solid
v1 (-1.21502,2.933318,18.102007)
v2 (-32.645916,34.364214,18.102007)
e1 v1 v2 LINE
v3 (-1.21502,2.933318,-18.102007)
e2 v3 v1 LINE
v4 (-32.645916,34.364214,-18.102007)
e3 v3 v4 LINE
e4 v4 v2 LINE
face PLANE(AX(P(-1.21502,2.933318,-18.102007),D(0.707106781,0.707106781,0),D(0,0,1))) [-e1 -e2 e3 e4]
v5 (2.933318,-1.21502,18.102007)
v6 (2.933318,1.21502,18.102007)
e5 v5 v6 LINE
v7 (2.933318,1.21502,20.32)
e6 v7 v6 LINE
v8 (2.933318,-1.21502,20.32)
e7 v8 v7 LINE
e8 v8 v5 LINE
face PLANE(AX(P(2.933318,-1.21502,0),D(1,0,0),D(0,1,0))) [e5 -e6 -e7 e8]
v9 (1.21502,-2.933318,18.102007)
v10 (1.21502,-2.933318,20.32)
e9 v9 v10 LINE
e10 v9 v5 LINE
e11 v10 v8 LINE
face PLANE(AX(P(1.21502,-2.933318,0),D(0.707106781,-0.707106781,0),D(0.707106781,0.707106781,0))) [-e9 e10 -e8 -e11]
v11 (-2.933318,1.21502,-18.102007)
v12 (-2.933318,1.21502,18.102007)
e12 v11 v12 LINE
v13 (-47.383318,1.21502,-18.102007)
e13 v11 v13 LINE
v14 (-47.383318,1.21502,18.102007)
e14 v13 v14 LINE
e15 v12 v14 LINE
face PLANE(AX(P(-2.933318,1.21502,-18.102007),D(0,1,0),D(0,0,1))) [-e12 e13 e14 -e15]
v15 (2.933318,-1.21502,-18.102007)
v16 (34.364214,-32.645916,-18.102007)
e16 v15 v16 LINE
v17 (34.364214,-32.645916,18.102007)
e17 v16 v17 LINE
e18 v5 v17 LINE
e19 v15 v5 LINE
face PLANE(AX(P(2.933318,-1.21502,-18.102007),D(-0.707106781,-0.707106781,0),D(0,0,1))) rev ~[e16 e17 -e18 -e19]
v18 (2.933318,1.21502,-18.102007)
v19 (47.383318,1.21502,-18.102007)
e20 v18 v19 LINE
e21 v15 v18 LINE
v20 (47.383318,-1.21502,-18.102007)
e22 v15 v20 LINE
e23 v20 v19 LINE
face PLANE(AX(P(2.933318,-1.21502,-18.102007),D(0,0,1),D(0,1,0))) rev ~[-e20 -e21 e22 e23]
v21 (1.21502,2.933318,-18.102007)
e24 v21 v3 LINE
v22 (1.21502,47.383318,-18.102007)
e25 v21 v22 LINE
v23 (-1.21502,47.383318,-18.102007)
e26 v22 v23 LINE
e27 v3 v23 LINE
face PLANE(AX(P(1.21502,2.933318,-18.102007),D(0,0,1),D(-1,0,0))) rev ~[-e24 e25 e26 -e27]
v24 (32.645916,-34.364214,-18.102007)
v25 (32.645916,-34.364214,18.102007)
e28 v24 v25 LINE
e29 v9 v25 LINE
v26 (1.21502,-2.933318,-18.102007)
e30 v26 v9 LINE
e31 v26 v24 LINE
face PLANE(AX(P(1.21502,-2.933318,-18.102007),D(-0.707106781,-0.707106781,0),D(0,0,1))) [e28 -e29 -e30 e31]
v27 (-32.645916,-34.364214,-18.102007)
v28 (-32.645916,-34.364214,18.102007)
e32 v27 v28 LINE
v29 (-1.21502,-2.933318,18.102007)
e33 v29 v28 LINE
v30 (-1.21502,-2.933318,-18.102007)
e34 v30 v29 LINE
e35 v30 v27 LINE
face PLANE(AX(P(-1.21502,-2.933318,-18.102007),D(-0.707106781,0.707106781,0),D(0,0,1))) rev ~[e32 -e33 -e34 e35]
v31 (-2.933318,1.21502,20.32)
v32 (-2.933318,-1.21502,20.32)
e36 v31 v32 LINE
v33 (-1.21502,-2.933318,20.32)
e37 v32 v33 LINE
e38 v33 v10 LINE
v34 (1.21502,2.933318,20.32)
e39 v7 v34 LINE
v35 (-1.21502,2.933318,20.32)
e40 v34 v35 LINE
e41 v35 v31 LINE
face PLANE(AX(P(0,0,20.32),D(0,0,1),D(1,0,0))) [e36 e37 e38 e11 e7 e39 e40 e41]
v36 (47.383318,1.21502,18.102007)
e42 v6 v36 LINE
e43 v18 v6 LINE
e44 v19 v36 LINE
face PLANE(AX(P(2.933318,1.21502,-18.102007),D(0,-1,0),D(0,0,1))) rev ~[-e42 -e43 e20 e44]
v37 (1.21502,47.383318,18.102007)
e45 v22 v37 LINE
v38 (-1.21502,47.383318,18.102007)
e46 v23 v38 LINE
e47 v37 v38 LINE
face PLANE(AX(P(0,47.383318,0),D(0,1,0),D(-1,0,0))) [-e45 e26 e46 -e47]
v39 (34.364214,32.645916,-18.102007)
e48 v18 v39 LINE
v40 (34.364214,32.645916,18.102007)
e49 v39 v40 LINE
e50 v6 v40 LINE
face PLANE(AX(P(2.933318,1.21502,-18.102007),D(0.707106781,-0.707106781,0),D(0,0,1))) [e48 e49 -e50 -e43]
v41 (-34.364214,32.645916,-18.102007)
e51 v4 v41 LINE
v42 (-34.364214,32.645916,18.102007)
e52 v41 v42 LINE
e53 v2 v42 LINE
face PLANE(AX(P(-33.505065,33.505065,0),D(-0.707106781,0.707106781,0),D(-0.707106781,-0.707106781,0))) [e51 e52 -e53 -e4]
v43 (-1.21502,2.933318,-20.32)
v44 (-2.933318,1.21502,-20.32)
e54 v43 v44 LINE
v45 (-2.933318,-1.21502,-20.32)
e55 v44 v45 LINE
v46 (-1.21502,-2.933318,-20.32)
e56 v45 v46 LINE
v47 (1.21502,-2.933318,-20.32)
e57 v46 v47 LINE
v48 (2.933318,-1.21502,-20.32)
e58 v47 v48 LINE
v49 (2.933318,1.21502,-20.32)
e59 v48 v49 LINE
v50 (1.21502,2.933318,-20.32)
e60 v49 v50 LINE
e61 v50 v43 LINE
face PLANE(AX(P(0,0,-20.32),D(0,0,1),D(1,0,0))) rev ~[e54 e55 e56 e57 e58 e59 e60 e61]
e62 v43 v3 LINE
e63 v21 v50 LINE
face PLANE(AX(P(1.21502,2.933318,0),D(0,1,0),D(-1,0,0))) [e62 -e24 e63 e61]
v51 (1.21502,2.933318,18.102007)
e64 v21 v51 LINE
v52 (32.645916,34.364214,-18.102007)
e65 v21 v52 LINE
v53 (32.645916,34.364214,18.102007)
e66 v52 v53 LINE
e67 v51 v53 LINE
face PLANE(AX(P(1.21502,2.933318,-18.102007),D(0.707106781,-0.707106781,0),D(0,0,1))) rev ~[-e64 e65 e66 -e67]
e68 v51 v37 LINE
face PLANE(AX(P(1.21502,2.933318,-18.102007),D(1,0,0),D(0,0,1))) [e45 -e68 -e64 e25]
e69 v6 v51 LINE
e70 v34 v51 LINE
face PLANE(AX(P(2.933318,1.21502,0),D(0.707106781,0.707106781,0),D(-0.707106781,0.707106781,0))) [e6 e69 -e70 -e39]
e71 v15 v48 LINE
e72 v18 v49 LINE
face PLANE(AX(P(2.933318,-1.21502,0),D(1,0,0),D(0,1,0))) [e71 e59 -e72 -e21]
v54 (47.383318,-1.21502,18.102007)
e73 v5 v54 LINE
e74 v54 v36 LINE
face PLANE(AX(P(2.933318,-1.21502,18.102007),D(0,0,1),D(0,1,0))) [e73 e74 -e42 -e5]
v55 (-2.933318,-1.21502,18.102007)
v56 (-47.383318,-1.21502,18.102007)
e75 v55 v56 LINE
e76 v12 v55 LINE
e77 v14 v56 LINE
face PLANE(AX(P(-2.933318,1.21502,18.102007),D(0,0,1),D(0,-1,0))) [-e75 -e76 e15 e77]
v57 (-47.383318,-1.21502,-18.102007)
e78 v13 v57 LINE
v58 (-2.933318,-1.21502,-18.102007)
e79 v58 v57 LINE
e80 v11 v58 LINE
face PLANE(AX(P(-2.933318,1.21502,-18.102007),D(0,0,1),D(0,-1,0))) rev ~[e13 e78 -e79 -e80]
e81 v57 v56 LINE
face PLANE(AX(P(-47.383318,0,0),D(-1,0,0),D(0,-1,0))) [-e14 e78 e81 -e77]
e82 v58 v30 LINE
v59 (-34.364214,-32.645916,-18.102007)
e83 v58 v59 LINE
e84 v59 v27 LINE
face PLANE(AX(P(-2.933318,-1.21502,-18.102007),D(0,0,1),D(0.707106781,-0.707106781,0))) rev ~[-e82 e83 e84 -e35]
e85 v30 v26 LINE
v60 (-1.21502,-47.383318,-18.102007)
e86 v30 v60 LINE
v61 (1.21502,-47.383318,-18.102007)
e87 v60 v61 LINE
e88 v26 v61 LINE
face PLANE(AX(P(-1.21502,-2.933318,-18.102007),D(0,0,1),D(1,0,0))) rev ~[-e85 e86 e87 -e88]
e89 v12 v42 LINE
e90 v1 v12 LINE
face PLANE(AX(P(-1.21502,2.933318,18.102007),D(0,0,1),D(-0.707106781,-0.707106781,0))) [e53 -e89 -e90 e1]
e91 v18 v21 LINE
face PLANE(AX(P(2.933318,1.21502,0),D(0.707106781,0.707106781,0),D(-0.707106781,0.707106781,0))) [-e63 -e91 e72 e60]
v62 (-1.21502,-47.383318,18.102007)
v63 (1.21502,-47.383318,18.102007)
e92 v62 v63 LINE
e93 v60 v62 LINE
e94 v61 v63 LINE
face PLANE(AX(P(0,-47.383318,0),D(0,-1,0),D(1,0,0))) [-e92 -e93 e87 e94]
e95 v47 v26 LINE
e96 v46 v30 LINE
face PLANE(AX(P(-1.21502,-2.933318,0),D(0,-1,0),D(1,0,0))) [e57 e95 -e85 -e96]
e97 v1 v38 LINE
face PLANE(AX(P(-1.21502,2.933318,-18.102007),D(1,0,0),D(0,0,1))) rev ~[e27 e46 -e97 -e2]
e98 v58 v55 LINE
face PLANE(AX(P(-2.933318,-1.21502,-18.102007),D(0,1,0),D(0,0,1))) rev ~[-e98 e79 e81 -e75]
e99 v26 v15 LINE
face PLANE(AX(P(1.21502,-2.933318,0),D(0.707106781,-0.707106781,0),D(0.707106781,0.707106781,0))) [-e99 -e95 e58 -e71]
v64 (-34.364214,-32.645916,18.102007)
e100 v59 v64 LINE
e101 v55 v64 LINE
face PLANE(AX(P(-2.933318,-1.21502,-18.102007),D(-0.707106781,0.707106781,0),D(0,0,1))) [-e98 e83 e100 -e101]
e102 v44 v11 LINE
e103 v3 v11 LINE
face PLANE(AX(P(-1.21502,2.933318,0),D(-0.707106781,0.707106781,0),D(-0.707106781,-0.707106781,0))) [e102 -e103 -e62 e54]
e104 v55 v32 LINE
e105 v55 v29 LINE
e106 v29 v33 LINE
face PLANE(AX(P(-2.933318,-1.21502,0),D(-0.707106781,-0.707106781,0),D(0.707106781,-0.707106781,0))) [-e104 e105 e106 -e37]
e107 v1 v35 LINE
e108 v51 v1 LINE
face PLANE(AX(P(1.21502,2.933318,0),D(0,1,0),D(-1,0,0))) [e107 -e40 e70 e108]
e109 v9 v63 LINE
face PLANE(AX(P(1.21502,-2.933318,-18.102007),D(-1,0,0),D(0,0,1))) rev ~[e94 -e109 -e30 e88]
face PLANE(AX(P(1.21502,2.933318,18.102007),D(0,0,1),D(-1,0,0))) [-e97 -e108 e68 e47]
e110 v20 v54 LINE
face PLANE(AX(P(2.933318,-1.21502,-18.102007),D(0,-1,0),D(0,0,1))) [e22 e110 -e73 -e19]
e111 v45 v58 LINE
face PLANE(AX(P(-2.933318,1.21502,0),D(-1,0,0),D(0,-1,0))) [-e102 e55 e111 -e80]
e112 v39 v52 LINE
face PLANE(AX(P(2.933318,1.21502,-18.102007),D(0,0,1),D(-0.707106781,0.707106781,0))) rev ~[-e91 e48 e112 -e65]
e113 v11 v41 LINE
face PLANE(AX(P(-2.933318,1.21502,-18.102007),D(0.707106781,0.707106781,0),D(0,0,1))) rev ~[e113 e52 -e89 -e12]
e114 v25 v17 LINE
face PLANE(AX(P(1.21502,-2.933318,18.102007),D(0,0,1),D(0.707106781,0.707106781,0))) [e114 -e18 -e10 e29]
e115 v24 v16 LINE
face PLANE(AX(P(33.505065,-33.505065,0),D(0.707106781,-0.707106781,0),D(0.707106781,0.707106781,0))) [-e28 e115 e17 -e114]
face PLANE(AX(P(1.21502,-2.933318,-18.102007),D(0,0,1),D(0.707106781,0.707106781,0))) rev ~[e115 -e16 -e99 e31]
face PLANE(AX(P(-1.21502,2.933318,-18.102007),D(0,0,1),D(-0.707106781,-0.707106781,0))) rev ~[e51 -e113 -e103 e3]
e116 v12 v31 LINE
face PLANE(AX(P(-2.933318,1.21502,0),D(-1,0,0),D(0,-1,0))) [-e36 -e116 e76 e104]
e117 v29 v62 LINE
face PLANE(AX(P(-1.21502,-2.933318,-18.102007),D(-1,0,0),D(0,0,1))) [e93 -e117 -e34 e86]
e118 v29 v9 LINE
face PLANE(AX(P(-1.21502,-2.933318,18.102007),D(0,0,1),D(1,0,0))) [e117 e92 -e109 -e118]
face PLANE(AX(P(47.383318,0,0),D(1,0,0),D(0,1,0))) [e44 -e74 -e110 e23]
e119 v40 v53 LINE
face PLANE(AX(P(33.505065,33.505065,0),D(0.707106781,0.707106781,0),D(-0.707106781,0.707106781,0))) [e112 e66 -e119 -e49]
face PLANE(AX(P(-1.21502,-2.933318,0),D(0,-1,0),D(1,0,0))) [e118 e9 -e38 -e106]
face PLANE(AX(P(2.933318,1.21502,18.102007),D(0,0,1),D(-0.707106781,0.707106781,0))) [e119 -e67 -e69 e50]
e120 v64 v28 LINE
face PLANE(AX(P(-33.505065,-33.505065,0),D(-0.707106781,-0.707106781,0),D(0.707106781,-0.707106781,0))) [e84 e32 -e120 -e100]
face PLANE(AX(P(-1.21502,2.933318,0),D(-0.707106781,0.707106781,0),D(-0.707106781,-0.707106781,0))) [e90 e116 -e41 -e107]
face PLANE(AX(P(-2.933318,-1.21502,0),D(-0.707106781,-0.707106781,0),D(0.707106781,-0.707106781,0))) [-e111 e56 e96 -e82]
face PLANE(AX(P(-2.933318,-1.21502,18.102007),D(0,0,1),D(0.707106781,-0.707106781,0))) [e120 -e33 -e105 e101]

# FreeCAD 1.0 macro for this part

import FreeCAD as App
import Part
import Sketcher
from FreeCAD import Vector
Q = App.Units.Quantity

doc = App.newDocument("Part")
body = doc.addObject("PartDesign::Body", "Body")

sketch1 = body.newObject("Sketcher::SketchObject", "Sketch")
sketch1.AttachmentSupport = (doc.getObject("XY_Plane"), [""])
sketch1.MapMode = "FlatFace"
sketch1.addGeometry([
    Part.LineSegment(Vector(1.2, 2.9, 0), Vector(-1.2, 2.9, 0)),
    Part.LineSegment(Vector(-1.2, 2.9, 0), Vector(-2.9, 1.2, 0)),
    Part.LineSegment(Vector(-2.9, 1.2, 0), Vector(-2.9, -1.2, 0)),
    Part.LineSegment(Vector(-2.9, -1.2, 0), Vector(-1.2, -2.9, 0)),
    Part.LineSegment(Vector(-1.2, -2.9, 0), Vector(1.2, -2.9, 0)),
    Part.LineSegment(Vector(1.2, -2.9, 0), Vector(2.9, -1.2, 0)),
    Part.LineSegment(Vector(2.9, -1.2, 0), Vector(2.9, 1.2, 0)),
    Part.LineSegment(Vector(2.9, 1.2, 0), Vector(1.2, 2.9, 0)),
], False)
sketch1.addConstraint([
    Sketcher.Constraint("Coincident", 0, 2, 1, 1),
    Sketcher.Constraint("Coincident", 1, 2, 2, 1),
    Sketcher.Constraint("Coincident", 2, 2, 3, 1),
    Sketcher.Constraint("Coincident", 3, 2, 4, 1),
    Sketcher.Constraint("Coincident", 4, 2, 5, 1),
    Sketcher.Constraint("Coincident", 5, 2, 6, 1),
    Sketcher.Constraint("Coincident", 6, 2, 7, 1),
    Sketcher.Constraint("Coincident", 7, 2, 0, 1),
    Sketcher.Constraint("Horizontal", 0),
    Sketcher.Constraint("Vertical", 2),
    Sketcher.Constraint("Horizontal", 4),
    Sketcher.Constraint("Vertical", 6),
    Sketcher.Constraint("Symmetric", 0, 2, 4, 2, -1, 1),
    Sketcher.Constraint("Symmetric", 1, 2, 5, 2, -1, 1),
    Sketcher.Constraint("Perpendicular", 1, 3),
    Sketcher.Constraint("Perpendicular", 5, 7),
    Sketcher.Constraint("Horizontal", 2, 2, 5, 2),
    Sketcher.Constraint("Horizontal", 1, 2, 6, 2),
    Sketcher.Constraint("Vertical", 0, 2, 3, 2),
    Sketcher.Constraint("Equal", 4, 2),
    Sketcher.Constraint("DistanceX", 0, 2, 0, 1, 2.43004),
    Sketcher.Constraint("Distance", 1, 2.43004),
])
pad1 = body.newObject("PartDesign::Pad", "Pad")
pad1.Profile = sketch1
pad1.Type = "TwoLengths"
pad1.Length = Q("0.8 in")
pad1.Length2 = Q("0.8 in")

sketch2 = body.newObject("Sketcher::SketchObject", "Sketch001")
sketch2.AttachmentSupport = (doc.getObject("XZ_Plane"), [""])
sketch2.MapMode = "FlatFace"
sketch2.AttachmentOffset = App.Placement(Vector(0, 0, -2.933318), App.Rotation())
sketch2.addGeometry([
    Part.LineSegment(Vector(1.2, 18.1, 0), Vector(1.2, -18.1, 0)),
    Part.LineSegment(Vector(1.2, -18.1, 0), Vector(-1.2, -18.1, 0)),
    Part.LineSegment(Vector(-1.2, -18.1, 0), Vector(-1.2, 18.1, 0)),
    Part.LineSegment(Vector(-1.2, 18.1, 0), Vector(1.2, 18.1, 0)),
], False)
sketch2.addConstraint([
    Sketcher.Constraint("Coincident", 0, 2, 1, 1),
    Sketcher.Constraint("Coincident", 1, 2, 2, 1),
    Sketcher.Constraint("Coincident", 2, 2, 3, 1),
    Sketcher.Constraint("Coincident", 3, 2, 0, 1),
    Sketcher.Constraint("Vertical", 0),
    Sketcher.Constraint("Horizontal", 1),
    Sketcher.Constraint("Vertical", 2),
    Sketcher.Constraint("Horizontal", 3),
    Sketcher.Constraint("Symmetric", 0, 2, 2, 2, -1, 1),
    Sketcher.Constraint("DistanceX", 1, 2, 1, 1, 2.43004),
    Sketcher.Constraint("DistanceY", 0, 2, 0, 1, 36.204014),
])
pad2 = body.newObject("PartDesign::Pad", "Pad001")
pad2.Profile = sketch2
pad2.Length = Q("1.75 in")
pad2.Reversed = True

sketch3 = body.newObject("Sketcher::SketchObject", "Sketch002")
sketch3.Placement = App.Placement(Vector(2.074169, 2.074169, 0), App.Rotation(Vector(-0.707106781, 0.707106781, 0), Vector(0, 0, 0.999999999), Vector(0.707106781, 0.707106781, 0), "ZXY"))
sketch3.addGeometry([
    Part.LineSegment(Vector(-1.2, 18.1, 0), Vector(-1.2, -18.1, 0)),
    Part.LineSegment(Vector(-1.2, -18.1, 0), Vector(1.2, -18.1, 0)),
    Part.LineSegment(Vector(1.2, -18.1, 0), Vector(1.2, 18.1, 0)),
    Part.LineSegment(Vector(1.2, 18.1, 0), Vector(-1.2, 18.1, 0)),
], False)
sketch3.addConstraint([
    Sketcher.Constraint("Coincident", 0, 2, 1, 1),
    Sketcher.Constraint("Coincident", 1, 2, 2, 1),
    Sketcher.Constraint("Coincident", 2, 2, 3, 1),
    Sketcher.Constraint("Coincident", 3, 2, 0, 1),
    Sketcher.Constraint("Vertical", 0),
    Sketcher.Constraint("Horizontal", 1),
    Sketcher.Constraint("Vertical", 2),
    Sketcher.Constraint("Horizontal", 3),
    Sketcher.Constraint("Symmetric", 0, 2, 2, 2, -1, 1),
    Sketcher.Constraint("DistanceX", 1, 1, 1, 2, 2.43004),
    Sketcher.Constraint("DistanceY", 0, 2, 0, 1, 36.204014),
])
pad3 = body.newObject("PartDesign::Pad", "Pad002")
pad3.Profile = sketch3
pad3.Length = Q("1.75 in")

sketch4 = body.newObject("Sketcher::SketchObject", "Sketch003")
sketch4.AttachmentSupport = (doc.getObject("YZ_Plane"), [""])
sketch4.MapMode = "FlatFace"
sketch4.AttachmentOffset = App.Placement(Vector(0, 0, 2.933318), App.Rotation())
sketch4.addGeometry([
    Part.LineSegment(Vector(-1.2, 18.1, 0), Vector(-1.2, -18.1, 0)),
    Part.LineSegment(Vector(-1.2, -18.1, 0), Vector(1.2, -18.1, 0)),
    Part.LineSegment(Vector(1.2, -18.1, 0), Vector(1.2, 18.1, 0)),
    Part.LineSegment(Vector(1.2, 18.1, 0), Vector(-1.2, 18.1, 0)),
], False)
sketch4.addConstraint([
    Sketcher.Constraint("Coincident", 0, 2, 1, 1),
    Sketcher.Constraint("Coincident", 1, 2, 2, 1),
    Sketcher.Constraint("Coincident", 2, 2, 3, 1),
    Sketcher.Constraint("Coincident", 3, 2, 0, 1),
    Sketcher.Constraint("Vertical", 0),
    Sketcher.Constraint("Horizontal", 1),
    Sketcher.Constraint("Vertical", 2),
    Sketcher.Constraint("Horizontal", 3),
    Sketcher.Constraint("Symmetric", 0, 2, 2, 2, -1, 1),
    Sketcher.Constraint("DistanceX", 1, 1, 1, 2, 2.43004),
    Sketcher.Constraint("DistanceY", 0, 2, 0, 1, 36.204014),
])
pad4 = body.newObject("PartDesign::Pad", "Pad003")
pad4.Profile = sketch4
pad4.Length = Q("1.75 in")

sketch5 = body.newObject("Sketcher::SketchObject", "Sketch004")
sketch5.Placement = App.Placement(Vector(2.074169, -2.074169, 0), App.Rotation(Vector(0.707106781, 0.707106781, 0), Vector(0, 0, 0.999999999), Vector(0.707106781, -0.707106781, 0), "ZXY"))
sketch5.addGeometry([
    Part.LineSegment(Vector(-1.2, 18.1, 0), Vector(-1.2, -18.1, 0)),
    Part.LineSegment(Vector(-1.2, -18.1, 0), Vector(1.2, -18.1, 0)),
    Part.LineSegment(Vector(1.2, -18.1, 0), Vector(1.2, 18.1, 0)),
    Part.LineSegment(Vector(1.2, 18.1, 0), Vector(-1.2, 18.1, 0)),
], False)
sketch5.addConstraint([
    Sketcher.Constraint("Coincident", 0, 2, 1, 1),
    Sketcher.Constraint("Coincident", 1, 2, 2, 1),
    Sketcher.Constraint("Coincident", 2, 2, 3, 1),
    Sketcher.Constraint("Coincident", 3, 2, 0, 1),
    Sketcher.Constraint("Vertical", 0),
    Sketcher.Constraint("Horizontal", 1),
    Sketcher.Constraint("Vertical", 2),
    Sketcher.Constraint("Horizontal", 3),
    Sketcher.Constraint("Symmetric", 0, 2, 2, 2, -1, 1),
    Sketcher.Constraint("DistanceX", 1, 1, 1, 2, 2.43004),
    Sketcher.Constraint("DistanceY", 0, 2, 0, 1, 36.204014),
])
pad5 = body.newObject("PartDesign::Pad", "Pad004")
pad5.Profile = sketch5
pad5.Length = Q("1.75 in")

sketch6 = body.newObject("Sketcher::SketchObject", "Sketch005")
sketch6.AttachmentSupport = (doc.getObject("XZ_Plane"), [""])
sketch6.MapMode = "FlatFace"
sketch6.AttachmentOffset = App.Placement(Vector(0, 0, 2.933318), App.Rotation())
sketch6.addGeometry([
    Part.LineSegment(Vector(-1.2, 18.1, 0), Vector(-1.2, -18.1, 0)),
    Part.LineSegment(Vector(-1.2, -18.1, 0), Vector(1.2, -18.1, 0)),
    Part.LineSegment(Vector(1.2, -18.1, 0), Vector(1.2, 18.1, 0)),
    Part.LineSegment(Vector(1.2, 18.1, 0), Vector(-1.2, 18.1, 0)),
], False)
sketch6.addConstraint([
    Sketcher.Constraint("Coincident", 0, 2, 1, 1),
    Sketcher.Constraint("Coincident", 1, 2, 2, 1),
    Sketcher.Constraint("Coincident", 2, 2, 3, 1),
    Sketcher.Constraint("Coincident", 3, 2, 0, 1),
    Sketcher.Constraint("Vertical", 0),
    Sketcher.Constraint("Horizontal", 1),
    Sketcher.Constraint("Vertical", 2),
    Sketcher.Constraint("Horizontal", 3),
    Sketcher.Constraint("Symmetric", 0, 2, 2, 2, -1, 1),
    Sketcher.Constraint("DistanceX", 1, 1, 1, 2, 2.43004),
    Sketcher.Constraint("DistanceY", 0, 2, 0, 1, 36.204014),
])
pad6 = body.newObject("PartDesign::Pad", "Pad005")
pad6.Profile = sketch6
pad6.Length = Q("1.75 in")

sketch7 = body.newObject("Sketcher::SketchObject", "Sketch006")
sketch7.Placement = App.Placement(Vector(-2.074169, 2.074169, 0), App.Rotation(Vector(-0.707106781, -0.707106781, 0), Vector(0, 0, 0.999999999), Vector(-0.707106781, 0.707106781, 0), "ZXY"))
sketch7.addGeometry([
    Part.LineSegment(Vector(-1.2, 18.1, 0), Vector(-1.2, -18.1, 0)),
    Part.LineSegment(Vector(-1.2, -18.1, 0), Vector(1.2, -18.1, 0)),
    Part.LineSegment(Vector(1.2, -18.1, 0), Vector(1.2, 18.1, 0)),
    Part.LineSegment(Vector(1.2, 18.1, 0), Vector(-1.2, 18.1, 0)),
], False)
sketch7.addConstraint([
    Sketcher.Constraint("Coincident", 0, 2, 1, 1),
    Sketcher.Constraint("Coincident", 1, 2, 2, 1),
    Sketcher.Constraint("Coincident", 2, 2, 3, 1),
    Sketcher.Constraint("Coincident", 3, 2, 0, 1),
    Sketcher.Constraint("Vertical", 0),
    Sketcher.Constraint("Horizontal", 1),
    Sketcher.Constraint("Vertical", 2),
    Sketcher.Constraint("Horizontal", 3),
    Sketcher.Constraint("Symmetric", 0, 2, 2, 2, -1, 1),
    Sketcher.Constraint("DistanceX", 1, 1, 1, 2, 2.43004),
    Sketcher.Constraint("DistanceY", 0, 2, 0, 1, 36.204014),
])
pad7 = body.newObject("PartDesign::Pad", "Pad006")
pad7.Profile = sketch7
pad7.Length = Q("1.75 in")

sketch8 = body.newObject("Sketcher::SketchObject", "Sketch007")
sketch8.AttachmentSupport = (doc.getObject("YZ_Plane"), [""])
sketch8.MapMode = "FlatFace"
sketch8.AttachmentOffset = App.Placement(Vector(0, 0, -2.933318), App.Rotation())
sketch8.addGeometry([
    Part.LineSegment(Vector(1.2, 18.1, 0), Vector(1.2, -18.1, 0)),
    Part.LineSegment(Vector(1.2, -18.1, 0), Vector(-1.2, -18.1, 0)),
    Part.LineSegment(Vector(-1.2, -18.1, 0), Vector(-1.2, 18.1, 0)),
    Part.LineSegment(Vector(-1.2, 18.1, 0), Vector(1.2, 18.1, 0)),
], False)
sketch8.addConstraint([
    Sketcher.Constraint("Coincident", 0, 2, 1, 1),
    Sketcher.Constraint("Coincident", 1, 2, 2, 1),
    Sketcher.Constraint("Coincident", 2, 2, 3, 1),
    Sketcher.Constraint("Coincident", 3, 2, 0, 1),
    Sketcher.Constraint("Vertical", 0),
    Sketcher.Constraint("Horizontal", 1),
    Sketcher.Constraint("Vertical", 2),
    Sketcher.Constraint("Horizontal", 3),
    Sketcher.Constraint("Symmetric", 0, 2, 2, 2, -1, 1),
    Sketcher.Constraint("DistanceX", 1, 2, 1, 1, 2.43004),
    Sketcher.Constraint("DistanceY", 0, 2, 0, 1, 36.204014),
])
pad8 = body.newObject("PartDesign::Pad", "Pad007")
pad8.Profile = sketch8
pad8.Length = Q("1.75 in")
pad8.Reversed = True

sketch9 = body.newObject("Sketcher::SketchObject", "Sketch008")
sketch9.Placement = App.Placement(Vector(-2.074169, -2.074169, 0), App.Rotation(Vector(0.707106781, -0.707106781, 0), Vector(0, 0, 0.999999999), Vector(-0.707106781, -0.707106781, 0), "ZXY"))
sketch9.addGeometry([
    Part.LineSegment(Vector(-1.2, 18.1, 0), Vector(-1.2, -18.1, 0)),
    Part.LineSegment(Vector(-1.2, -18.1, 0), Vector(1.2, -18.1, 0)),
    Part.LineSegment(Vector(1.2, -18.1, 0), Vector(1.2, 18.1, 0)),
    Part.LineSegment(Vector(1.2, 18.1, 0), Vector(-1.2, 18.1, 0)),
], False)
sketch9.addConstraint([
    Sketcher.Constraint("Coincident", 0, 2, 1, 1),
    Sketcher.Constraint("Coincident", 1, 2, 2, 1),
    Sketcher.Constraint("Coincident", 2, 2, 3, 1),
    Sketcher.Constraint("Coincident", 3, 2, 0, 1),
    Sketcher.Constraint("Vertical", 0),
    Sketcher.Constraint("Horizontal", 1),
    Sketcher.Constraint("Vertical", 2),
    Sketcher.Constraint("Horizontal", 3),
    Sketcher.Constraint("Symmetric", 0, 2, 2, 2, -1, 1),
    Sketcher.Constraint("DistanceX", 1, 1, 1, 2, 2.43004),
    Sketcher.Constraint("DistanceY", 0, 2, 0, 1, 36.204014),
])
pad9 = body.newObject("PartDesign::Pad", "Pad008")
pad9.Profile = sketch9
pad9.Length = Q("1.75 in")

doc.recompute()
